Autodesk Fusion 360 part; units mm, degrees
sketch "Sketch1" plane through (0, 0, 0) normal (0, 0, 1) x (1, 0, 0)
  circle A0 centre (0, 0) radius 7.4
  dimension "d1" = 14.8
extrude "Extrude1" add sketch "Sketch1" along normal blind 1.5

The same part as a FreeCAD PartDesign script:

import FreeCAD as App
import Part
import Sketcher

V = App.Vector

doc = App.newDocument("Part")
params = doc.addObject("Spreadsheet::Sheet", "Params")
for row, (alias, value) in enumerate([
    ("sketch1_diameter", "14.8 mm"),
    ("pad1_length", "1.5 mm"),
], start=1):
    params.set(f"A{row}", alias)
    params.set(f"B{row}", "=" + value)
    params.setAlias(f"B{row}", alias)

body = doc.addObject("PartDesign::Body", "Body")

# Sketch on XY plane
sketch1 = body.newObject("Sketcher::SketchObject", "Sketch")
sketch1.AttachmentSupport = (doc.getObject("XY_Plane"), [""])
sketch1.MapMode = "FlatFace"
sketch1.addGeometry(Part.Circle(V(0, 0, 0), V(0, 0, 1), 7), False)
sketch1.addConstraint(Sketcher.Constraint("Coincident", 0, 3, -1, 1))
sketch1.addConstraint(Sketcher.Constraint("Diameter", 0, 14.8))
sketch1.setExpression("Constraints[1]", "Params.sketch1_diameter")
pad1 = body.newObject("PartDesign::Pad", "Pad")
pad1.Profile = sketch1
pad1.setExpression("Length", "Params.pad1_length")

doc.recompute()
